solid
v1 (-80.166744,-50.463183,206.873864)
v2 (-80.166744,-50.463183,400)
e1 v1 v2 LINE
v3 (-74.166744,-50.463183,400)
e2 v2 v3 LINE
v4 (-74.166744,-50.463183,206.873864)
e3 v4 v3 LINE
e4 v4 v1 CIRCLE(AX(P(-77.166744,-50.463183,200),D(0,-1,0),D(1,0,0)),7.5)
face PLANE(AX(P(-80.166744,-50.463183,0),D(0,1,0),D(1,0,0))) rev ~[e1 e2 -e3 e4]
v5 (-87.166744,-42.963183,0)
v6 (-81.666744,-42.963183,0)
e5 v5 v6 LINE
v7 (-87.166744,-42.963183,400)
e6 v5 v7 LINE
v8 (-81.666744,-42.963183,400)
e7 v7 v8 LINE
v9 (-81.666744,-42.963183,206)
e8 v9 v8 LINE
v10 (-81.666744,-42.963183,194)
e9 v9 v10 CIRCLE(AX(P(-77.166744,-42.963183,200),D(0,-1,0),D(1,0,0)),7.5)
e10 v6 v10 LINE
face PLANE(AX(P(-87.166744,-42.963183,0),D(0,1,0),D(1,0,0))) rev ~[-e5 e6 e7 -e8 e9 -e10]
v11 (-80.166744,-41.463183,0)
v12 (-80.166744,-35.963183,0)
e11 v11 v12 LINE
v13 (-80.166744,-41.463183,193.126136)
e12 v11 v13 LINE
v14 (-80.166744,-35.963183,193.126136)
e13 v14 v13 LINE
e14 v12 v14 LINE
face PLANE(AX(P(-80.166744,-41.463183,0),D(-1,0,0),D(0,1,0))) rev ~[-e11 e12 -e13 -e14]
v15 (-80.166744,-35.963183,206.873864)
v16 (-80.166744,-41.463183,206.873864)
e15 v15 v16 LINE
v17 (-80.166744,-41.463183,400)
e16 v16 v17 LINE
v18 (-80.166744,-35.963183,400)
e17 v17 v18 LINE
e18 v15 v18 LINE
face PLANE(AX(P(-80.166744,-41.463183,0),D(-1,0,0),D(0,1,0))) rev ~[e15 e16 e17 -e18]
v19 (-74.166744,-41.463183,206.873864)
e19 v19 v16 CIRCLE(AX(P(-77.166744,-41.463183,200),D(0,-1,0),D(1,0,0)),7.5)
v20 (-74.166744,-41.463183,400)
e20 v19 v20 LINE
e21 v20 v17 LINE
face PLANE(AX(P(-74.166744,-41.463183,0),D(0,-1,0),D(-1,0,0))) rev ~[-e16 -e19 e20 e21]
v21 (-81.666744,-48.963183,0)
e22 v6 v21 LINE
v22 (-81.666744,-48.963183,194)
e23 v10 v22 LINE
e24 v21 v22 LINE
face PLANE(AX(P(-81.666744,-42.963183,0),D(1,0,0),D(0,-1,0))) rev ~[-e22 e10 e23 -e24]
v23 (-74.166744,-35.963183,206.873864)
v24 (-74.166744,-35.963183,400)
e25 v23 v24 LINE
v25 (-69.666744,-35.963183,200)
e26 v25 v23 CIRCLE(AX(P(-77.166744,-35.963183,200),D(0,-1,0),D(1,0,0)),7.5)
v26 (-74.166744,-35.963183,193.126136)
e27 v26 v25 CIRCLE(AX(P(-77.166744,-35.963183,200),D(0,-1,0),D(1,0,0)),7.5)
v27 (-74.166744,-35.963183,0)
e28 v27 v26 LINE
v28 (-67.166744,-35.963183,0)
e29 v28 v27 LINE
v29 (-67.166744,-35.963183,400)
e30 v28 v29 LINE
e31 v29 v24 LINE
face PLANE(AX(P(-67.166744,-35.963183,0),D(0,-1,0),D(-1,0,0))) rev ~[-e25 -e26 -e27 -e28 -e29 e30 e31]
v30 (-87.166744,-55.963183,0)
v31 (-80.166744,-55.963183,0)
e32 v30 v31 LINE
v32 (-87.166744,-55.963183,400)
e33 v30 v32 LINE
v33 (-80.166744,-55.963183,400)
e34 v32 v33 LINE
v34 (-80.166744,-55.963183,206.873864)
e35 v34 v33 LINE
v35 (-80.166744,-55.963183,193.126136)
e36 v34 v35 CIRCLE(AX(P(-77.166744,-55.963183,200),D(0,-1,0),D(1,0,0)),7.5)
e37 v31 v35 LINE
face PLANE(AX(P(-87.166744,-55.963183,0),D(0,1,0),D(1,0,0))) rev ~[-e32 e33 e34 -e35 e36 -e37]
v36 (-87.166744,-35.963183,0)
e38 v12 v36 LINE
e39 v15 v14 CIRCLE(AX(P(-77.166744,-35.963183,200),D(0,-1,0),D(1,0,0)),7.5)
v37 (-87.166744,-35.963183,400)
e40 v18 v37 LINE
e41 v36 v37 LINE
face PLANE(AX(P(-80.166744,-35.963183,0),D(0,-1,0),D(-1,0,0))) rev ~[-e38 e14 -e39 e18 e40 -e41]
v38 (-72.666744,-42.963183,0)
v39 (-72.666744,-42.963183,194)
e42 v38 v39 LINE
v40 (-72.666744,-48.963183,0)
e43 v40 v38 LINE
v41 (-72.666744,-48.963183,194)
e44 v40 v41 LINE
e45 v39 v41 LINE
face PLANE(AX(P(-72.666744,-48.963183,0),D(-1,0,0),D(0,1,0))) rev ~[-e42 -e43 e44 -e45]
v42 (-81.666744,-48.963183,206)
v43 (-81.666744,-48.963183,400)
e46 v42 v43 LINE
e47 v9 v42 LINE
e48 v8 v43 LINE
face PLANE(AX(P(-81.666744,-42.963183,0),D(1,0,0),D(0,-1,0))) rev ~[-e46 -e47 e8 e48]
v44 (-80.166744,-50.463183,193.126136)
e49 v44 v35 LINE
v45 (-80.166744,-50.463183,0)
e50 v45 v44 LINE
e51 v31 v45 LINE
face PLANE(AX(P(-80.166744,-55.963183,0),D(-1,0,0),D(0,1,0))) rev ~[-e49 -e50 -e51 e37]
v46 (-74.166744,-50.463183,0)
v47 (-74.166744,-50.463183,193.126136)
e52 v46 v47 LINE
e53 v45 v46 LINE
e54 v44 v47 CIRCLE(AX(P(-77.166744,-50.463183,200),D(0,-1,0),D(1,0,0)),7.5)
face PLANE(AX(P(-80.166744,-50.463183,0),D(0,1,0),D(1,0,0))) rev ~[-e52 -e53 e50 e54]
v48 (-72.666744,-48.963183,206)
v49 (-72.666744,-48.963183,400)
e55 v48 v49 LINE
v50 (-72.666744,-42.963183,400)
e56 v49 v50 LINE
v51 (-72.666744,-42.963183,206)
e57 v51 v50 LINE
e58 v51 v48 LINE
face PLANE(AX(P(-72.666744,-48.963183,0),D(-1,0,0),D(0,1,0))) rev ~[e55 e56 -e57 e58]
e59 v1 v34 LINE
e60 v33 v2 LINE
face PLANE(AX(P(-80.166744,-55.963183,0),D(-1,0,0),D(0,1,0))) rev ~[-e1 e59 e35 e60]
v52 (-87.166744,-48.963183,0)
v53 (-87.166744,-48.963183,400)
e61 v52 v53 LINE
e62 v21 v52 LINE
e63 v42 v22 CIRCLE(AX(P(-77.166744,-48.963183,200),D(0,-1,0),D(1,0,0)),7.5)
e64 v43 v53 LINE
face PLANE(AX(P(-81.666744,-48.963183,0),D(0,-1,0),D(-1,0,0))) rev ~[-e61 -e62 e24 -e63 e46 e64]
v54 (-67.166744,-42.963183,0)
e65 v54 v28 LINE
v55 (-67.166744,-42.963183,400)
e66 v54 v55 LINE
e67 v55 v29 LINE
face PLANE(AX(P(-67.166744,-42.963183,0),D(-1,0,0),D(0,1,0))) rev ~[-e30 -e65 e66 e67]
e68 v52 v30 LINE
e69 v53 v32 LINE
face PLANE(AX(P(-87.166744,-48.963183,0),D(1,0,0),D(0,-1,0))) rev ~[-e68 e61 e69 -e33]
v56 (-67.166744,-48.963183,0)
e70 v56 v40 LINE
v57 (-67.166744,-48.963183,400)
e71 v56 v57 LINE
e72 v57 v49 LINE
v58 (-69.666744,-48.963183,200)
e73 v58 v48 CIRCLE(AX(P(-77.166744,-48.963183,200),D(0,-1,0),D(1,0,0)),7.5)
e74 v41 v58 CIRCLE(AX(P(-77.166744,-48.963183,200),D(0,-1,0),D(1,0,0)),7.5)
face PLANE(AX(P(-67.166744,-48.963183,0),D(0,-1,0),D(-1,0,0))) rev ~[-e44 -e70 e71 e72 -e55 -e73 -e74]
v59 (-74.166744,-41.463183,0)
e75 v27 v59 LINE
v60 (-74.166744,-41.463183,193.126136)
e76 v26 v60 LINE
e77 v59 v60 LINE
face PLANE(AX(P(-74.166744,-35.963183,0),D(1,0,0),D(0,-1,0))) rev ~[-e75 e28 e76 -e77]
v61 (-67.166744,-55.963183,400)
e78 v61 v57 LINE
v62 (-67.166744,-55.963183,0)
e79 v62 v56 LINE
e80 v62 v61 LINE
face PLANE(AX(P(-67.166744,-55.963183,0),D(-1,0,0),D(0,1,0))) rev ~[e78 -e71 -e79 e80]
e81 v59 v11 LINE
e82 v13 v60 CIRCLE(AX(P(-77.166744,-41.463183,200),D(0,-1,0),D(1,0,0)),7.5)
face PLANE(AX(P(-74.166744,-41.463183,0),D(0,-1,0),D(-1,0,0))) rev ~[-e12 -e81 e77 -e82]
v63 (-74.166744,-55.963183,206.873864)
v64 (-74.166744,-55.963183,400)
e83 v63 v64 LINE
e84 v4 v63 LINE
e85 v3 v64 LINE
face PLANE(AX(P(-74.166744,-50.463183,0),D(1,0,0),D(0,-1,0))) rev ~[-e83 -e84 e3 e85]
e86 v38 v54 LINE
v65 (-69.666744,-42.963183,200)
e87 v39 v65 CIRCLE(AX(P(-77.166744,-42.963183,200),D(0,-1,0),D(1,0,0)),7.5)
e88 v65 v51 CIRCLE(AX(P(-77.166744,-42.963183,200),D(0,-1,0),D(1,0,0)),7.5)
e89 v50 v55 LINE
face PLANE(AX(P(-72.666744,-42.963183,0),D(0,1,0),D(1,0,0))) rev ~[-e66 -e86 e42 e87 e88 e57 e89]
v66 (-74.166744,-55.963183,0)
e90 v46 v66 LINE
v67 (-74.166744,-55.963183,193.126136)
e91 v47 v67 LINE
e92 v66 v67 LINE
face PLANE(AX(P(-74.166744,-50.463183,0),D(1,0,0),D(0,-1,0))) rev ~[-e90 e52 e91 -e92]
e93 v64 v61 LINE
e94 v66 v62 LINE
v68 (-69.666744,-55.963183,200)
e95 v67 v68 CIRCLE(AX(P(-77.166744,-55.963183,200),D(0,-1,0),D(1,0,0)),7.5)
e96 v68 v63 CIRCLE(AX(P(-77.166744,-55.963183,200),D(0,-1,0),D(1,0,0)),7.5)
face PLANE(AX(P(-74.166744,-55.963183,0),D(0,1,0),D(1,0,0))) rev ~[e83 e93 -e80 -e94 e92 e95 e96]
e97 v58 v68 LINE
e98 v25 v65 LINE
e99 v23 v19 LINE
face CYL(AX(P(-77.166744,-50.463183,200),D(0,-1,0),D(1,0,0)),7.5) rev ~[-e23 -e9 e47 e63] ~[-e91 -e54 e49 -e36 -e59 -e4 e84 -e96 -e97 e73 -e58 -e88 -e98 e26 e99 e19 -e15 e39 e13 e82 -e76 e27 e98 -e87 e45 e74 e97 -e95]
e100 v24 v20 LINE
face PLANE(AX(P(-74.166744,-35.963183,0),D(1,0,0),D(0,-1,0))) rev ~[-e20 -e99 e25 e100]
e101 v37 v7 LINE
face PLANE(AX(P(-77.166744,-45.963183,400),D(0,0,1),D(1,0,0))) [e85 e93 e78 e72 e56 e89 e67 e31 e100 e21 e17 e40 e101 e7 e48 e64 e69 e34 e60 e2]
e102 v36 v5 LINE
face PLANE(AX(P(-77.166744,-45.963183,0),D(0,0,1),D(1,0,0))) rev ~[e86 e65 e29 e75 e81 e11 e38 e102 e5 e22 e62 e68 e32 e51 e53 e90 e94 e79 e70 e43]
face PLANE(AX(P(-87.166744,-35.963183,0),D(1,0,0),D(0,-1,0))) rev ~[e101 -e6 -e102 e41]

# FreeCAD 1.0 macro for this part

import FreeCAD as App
import Part
import Sketcher
from FreeCAD import Vector
Q = App.Units.Quantity

doc = App.newDocument("Part")
body = doc.addObject("PartDesign::Body", "Body")

# Sketch on XY plane
sketch1 = doc.addObject("Sketcher::SketchObject", "Sketch")
body.addObject(sketch1)
sketch1.AttachmentSupport = (doc.XY_Plane, [""])
sketch1.MapMode = "FlatFace"
sketch1.addGeometry([
    Part.LineSegment(Vector(-87.166744, -48.963183, 0), Vector(-87.166744, -55.963183, 0)),  # 0
    Part.LineSegment(Vector(-87.166744, -55.963183, 0), Vector(-80.166744, -55.963183, 0)),  # 1
    Part.LineSegment(Vector(-80.166744, -55.963183, 0), Vector(-80.166744, -50.463183, 0)),  # 2
    Part.LineSegment(Vector(-80.166744, -50.463183, 0), Vector(-74.166744, -50.463183, 0)),  # 3
    Part.LineSegment(Vector(-74.166744, -50.463183, 0), Vector(-74.166744, -55.963183, 0)),  # 4
    Part.LineSegment(Vector(-74.166744, -55.963183, 0), Vector(-67.166744, -55.963183, 0)),  # 5
    Part.LineSegment(Vector(-67.166744, -55.963183, 0), Vector(-67.166744, -48.963183, 0)),  # 6
    Part.LineSegment(Vector(-67.166744, -48.963183, 0), Vector(-72.666744, -48.963183, 0)),  # 7
    Part.LineSegment(Vector(-72.666744, -48.963183, 0), Vector(-72.666744, -42.963183, 0)),  # 8
    Part.LineSegment(Vector(-72.666744, -42.963183, 0), Vector(-67.166744, -42.963183, 0)),  # 9
    Part.LineSegment(Vector(-67.166744, -42.963183, 0), Vector(-67.166744, -35.963183, 0)),  # 10
    Part.LineSegment(Vector(-67.166744, -35.963183, 0), Vector(-74.166744, -35.963183, 0)),  # 11
    Part.LineSegment(Vector(-74.166744, -35.963183, 0), Vector(-74.166744, -41.463183, 0)),  # 12
    Part.LineSegment(Vector(-74.166744, -41.463183, 0), Vector(-80.166744, -41.463183, 0)),  # 13
    Part.LineSegment(Vector(-80.166744, -41.463183, 0), Vector(-80.166744, -35.963183, 0)),  # 14
    Part.LineSegment(Vector(-80.166744, -35.963183, 0), Vector(-87.166744, -35.963183, 0)),  # 15
    Part.LineSegment(Vector(-87.166744, -35.963183, 0), Vector(-87.166744, -42.963183, 0)),  # 16
    Part.LineSegment(Vector(-87.166744, -42.963183, 0), Vector(-81.666744, -42.963183, 0)),  # 17
    Part.LineSegment(Vector(-81.666744, -42.963183, 0), Vector(-81.666744, -48.963183, 0)),  # 18
    Part.LineSegment(Vector(-81.666744, -48.963183, 0), Vector(-87.166744, -48.963183, 0)),  # 19
], False)
sketch1.addConstraint([
    Sketcher.Constraint("Coincident", 0, 2, 1, 1),
    Sketcher.Constraint("Coincident", 1, 2, 2, 1),
    Sketcher.Constraint("Coincident", 2, 2, 3, 1),
    Sketcher.Constraint("Coincident", 3, 2, 4, 1),
    Sketcher.Constraint("Coincident", 4, 2, 5, 1),
    Sketcher.Constraint("Coincident", 5, 2, 6, 1),
    Sketcher.Constraint("Coincident", 6, 2, 7, 1),
    Sketcher.Constraint("Coincident", 7, 2, 8, 1),
    Sketcher.Constraint("Coincident", 8, 2, 9, 1),
    Sketcher.Constraint("Coincident", 9, 2, 10, 1),
    Sketcher.Constraint("Coincident", 10, 2, 11, 1),
    Sketcher.Constraint("Coincident", 11, 2, 12, 1),
    Sketcher.Constraint("Coincident", 12, 2, 13, 1),
    Sketcher.Constraint("Coincident", 13, 2, 14, 1),
    Sketcher.Constraint("Coincident", 14, 2, 15, 1),
    Sketcher.Constraint("Coincident", 15, 2, 16, 1),
    Sketcher.Constraint("Coincident", 16, 2, 17, 1),
    Sketcher.Constraint("Coincident", 17, 2, 18, 1),
    Sketcher.Constraint("Coincident", 18, 2, 19, 1),
    Sketcher.Constraint("Coincident", 19, 2, 0, 1),
    Sketcher.Constraint("Vertical", 0),
    Sketcher.Constraint("Horizontal", 1),
    Sketcher.Constraint("Vertical", 2),
    Sketcher.Constraint("Horizontal", 3),
    Sketcher.Constraint("Vertical", 4),
    Sketcher.Constraint("Horizontal", 5),
    Sketcher.Constraint("Vertical", 6),
    Sketcher.Constraint("Horizontal", 7),
    Sketcher.Constraint("Vertical", 8),
    Sketcher.Constraint("Horizontal", 9),
    Sketcher.Constraint("Vertical", 10),
    Sketcher.Constraint("Horizontal", 11),
    Sketcher.Constraint("Vertical", 12),
    Sketcher.Constraint("Horizontal", 13),
    Sketcher.Constraint("Vertical", 14),
    Sketcher.Constraint("Horizontal", 15),
    Sketcher.Constraint("Vertical", 16),
    Sketcher.Constraint("Horizontal", 17),
    Sketcher.Constraint("Vertical", 18),
    Sketcher.Constraint("Horizontal", 19),
    Sketcher.Constraint("Horizontal", 1, 2, 4, 2),
    Sketcher.Constraint("Horizontal", 11, 2, 14, 2),
    Sketcher.Constraint("Horizontal", 9, 2, 16, 2),
    Sketcher.Constraint("Horizontal", 7, 2, 18, 2),
    Sketcher.Constraint("Vertical", 6, 2, 9, 2),
    Sketcher.Constraint("Vertical", 4, 2, 11, 2),
    Sketcher.Constraint("Vertical", 2, 2, 13, 2),
    Sketcher.Constraint("Vertical", 0, 2, 15, 2),
    Sketcher.Constraint("Equal", 1, 5),
    Sketcher.Constraint("Equal", 9, 17),
    Sketcher.Constraint("Equal", 15, 0),
    Sketcher.Constraint("Equal", 19, 2),
    Sketcher.Constraint("Equal", 13, 8),
    Sketcher.Constraint("Equal", 6, 10),
    Sketcher.Constraint("Equal", 4, 12),
    Sketcher.Constraint("DistanceX", 1, 1, 1, 2, Q("7 mm")),
    Sketcher.Constraint("DistanceX", 3, 1, 3, 2, Q("6 mm")),
    Sketcher.Constraint("DistanceX", 7, 2, 7, 1, Q("5.5 mm")),
    Sketcher.Constraint("DistanceX", 0, 2, -1, 1, Q("87.166744 mm")),
    Sketcher.Constraint("DistanceY", 0, 2, -1, 1, Q("55.963183 mm")),
])
pad1 = doc.addObject("PartDesign::Pad", "Pad")
body.addObject(pad1)
pad1.Profile = sketch1
pad1.Length = 400

# Sketch on XZ plane
sketch2 = doc.addObject("Sketcher::SketchObject", "Sketch001")
body.addObject(sketch2)
sketch2.AttachmentSupport = (doc.XZ_Plane, [""])
sketch2.MapMode = "FlatFace"
sketch2.AttachmentOffset = App.Placement(Vector(0, 0, 50.463183), App.Rotation())
sketch2.addGeometry(Part.Circle(Vector(-77.166744, 200, 0), Vector(0, 0, 1), 7.5), False)
sketch2.addConstraint([
    Sketcher.Constraint("Diameter", 0, Q("15 mm")),
    Sketcher.Constraint("DistanceY", -1, 1, 0, 3, Q("200 mm")),
    Sketcher.Constraint("DistanceX", 0, 3, -1, 1, Q("77.166744 mm")),
])
pocket1 = doc.addObject("PartDesign::Pocket", "Pocket")
body.addObject(pocket1)
pocket1.Profile = sketch2
pocket1.Length = 50
pocket1.Midplane = True

doc.recompute()
